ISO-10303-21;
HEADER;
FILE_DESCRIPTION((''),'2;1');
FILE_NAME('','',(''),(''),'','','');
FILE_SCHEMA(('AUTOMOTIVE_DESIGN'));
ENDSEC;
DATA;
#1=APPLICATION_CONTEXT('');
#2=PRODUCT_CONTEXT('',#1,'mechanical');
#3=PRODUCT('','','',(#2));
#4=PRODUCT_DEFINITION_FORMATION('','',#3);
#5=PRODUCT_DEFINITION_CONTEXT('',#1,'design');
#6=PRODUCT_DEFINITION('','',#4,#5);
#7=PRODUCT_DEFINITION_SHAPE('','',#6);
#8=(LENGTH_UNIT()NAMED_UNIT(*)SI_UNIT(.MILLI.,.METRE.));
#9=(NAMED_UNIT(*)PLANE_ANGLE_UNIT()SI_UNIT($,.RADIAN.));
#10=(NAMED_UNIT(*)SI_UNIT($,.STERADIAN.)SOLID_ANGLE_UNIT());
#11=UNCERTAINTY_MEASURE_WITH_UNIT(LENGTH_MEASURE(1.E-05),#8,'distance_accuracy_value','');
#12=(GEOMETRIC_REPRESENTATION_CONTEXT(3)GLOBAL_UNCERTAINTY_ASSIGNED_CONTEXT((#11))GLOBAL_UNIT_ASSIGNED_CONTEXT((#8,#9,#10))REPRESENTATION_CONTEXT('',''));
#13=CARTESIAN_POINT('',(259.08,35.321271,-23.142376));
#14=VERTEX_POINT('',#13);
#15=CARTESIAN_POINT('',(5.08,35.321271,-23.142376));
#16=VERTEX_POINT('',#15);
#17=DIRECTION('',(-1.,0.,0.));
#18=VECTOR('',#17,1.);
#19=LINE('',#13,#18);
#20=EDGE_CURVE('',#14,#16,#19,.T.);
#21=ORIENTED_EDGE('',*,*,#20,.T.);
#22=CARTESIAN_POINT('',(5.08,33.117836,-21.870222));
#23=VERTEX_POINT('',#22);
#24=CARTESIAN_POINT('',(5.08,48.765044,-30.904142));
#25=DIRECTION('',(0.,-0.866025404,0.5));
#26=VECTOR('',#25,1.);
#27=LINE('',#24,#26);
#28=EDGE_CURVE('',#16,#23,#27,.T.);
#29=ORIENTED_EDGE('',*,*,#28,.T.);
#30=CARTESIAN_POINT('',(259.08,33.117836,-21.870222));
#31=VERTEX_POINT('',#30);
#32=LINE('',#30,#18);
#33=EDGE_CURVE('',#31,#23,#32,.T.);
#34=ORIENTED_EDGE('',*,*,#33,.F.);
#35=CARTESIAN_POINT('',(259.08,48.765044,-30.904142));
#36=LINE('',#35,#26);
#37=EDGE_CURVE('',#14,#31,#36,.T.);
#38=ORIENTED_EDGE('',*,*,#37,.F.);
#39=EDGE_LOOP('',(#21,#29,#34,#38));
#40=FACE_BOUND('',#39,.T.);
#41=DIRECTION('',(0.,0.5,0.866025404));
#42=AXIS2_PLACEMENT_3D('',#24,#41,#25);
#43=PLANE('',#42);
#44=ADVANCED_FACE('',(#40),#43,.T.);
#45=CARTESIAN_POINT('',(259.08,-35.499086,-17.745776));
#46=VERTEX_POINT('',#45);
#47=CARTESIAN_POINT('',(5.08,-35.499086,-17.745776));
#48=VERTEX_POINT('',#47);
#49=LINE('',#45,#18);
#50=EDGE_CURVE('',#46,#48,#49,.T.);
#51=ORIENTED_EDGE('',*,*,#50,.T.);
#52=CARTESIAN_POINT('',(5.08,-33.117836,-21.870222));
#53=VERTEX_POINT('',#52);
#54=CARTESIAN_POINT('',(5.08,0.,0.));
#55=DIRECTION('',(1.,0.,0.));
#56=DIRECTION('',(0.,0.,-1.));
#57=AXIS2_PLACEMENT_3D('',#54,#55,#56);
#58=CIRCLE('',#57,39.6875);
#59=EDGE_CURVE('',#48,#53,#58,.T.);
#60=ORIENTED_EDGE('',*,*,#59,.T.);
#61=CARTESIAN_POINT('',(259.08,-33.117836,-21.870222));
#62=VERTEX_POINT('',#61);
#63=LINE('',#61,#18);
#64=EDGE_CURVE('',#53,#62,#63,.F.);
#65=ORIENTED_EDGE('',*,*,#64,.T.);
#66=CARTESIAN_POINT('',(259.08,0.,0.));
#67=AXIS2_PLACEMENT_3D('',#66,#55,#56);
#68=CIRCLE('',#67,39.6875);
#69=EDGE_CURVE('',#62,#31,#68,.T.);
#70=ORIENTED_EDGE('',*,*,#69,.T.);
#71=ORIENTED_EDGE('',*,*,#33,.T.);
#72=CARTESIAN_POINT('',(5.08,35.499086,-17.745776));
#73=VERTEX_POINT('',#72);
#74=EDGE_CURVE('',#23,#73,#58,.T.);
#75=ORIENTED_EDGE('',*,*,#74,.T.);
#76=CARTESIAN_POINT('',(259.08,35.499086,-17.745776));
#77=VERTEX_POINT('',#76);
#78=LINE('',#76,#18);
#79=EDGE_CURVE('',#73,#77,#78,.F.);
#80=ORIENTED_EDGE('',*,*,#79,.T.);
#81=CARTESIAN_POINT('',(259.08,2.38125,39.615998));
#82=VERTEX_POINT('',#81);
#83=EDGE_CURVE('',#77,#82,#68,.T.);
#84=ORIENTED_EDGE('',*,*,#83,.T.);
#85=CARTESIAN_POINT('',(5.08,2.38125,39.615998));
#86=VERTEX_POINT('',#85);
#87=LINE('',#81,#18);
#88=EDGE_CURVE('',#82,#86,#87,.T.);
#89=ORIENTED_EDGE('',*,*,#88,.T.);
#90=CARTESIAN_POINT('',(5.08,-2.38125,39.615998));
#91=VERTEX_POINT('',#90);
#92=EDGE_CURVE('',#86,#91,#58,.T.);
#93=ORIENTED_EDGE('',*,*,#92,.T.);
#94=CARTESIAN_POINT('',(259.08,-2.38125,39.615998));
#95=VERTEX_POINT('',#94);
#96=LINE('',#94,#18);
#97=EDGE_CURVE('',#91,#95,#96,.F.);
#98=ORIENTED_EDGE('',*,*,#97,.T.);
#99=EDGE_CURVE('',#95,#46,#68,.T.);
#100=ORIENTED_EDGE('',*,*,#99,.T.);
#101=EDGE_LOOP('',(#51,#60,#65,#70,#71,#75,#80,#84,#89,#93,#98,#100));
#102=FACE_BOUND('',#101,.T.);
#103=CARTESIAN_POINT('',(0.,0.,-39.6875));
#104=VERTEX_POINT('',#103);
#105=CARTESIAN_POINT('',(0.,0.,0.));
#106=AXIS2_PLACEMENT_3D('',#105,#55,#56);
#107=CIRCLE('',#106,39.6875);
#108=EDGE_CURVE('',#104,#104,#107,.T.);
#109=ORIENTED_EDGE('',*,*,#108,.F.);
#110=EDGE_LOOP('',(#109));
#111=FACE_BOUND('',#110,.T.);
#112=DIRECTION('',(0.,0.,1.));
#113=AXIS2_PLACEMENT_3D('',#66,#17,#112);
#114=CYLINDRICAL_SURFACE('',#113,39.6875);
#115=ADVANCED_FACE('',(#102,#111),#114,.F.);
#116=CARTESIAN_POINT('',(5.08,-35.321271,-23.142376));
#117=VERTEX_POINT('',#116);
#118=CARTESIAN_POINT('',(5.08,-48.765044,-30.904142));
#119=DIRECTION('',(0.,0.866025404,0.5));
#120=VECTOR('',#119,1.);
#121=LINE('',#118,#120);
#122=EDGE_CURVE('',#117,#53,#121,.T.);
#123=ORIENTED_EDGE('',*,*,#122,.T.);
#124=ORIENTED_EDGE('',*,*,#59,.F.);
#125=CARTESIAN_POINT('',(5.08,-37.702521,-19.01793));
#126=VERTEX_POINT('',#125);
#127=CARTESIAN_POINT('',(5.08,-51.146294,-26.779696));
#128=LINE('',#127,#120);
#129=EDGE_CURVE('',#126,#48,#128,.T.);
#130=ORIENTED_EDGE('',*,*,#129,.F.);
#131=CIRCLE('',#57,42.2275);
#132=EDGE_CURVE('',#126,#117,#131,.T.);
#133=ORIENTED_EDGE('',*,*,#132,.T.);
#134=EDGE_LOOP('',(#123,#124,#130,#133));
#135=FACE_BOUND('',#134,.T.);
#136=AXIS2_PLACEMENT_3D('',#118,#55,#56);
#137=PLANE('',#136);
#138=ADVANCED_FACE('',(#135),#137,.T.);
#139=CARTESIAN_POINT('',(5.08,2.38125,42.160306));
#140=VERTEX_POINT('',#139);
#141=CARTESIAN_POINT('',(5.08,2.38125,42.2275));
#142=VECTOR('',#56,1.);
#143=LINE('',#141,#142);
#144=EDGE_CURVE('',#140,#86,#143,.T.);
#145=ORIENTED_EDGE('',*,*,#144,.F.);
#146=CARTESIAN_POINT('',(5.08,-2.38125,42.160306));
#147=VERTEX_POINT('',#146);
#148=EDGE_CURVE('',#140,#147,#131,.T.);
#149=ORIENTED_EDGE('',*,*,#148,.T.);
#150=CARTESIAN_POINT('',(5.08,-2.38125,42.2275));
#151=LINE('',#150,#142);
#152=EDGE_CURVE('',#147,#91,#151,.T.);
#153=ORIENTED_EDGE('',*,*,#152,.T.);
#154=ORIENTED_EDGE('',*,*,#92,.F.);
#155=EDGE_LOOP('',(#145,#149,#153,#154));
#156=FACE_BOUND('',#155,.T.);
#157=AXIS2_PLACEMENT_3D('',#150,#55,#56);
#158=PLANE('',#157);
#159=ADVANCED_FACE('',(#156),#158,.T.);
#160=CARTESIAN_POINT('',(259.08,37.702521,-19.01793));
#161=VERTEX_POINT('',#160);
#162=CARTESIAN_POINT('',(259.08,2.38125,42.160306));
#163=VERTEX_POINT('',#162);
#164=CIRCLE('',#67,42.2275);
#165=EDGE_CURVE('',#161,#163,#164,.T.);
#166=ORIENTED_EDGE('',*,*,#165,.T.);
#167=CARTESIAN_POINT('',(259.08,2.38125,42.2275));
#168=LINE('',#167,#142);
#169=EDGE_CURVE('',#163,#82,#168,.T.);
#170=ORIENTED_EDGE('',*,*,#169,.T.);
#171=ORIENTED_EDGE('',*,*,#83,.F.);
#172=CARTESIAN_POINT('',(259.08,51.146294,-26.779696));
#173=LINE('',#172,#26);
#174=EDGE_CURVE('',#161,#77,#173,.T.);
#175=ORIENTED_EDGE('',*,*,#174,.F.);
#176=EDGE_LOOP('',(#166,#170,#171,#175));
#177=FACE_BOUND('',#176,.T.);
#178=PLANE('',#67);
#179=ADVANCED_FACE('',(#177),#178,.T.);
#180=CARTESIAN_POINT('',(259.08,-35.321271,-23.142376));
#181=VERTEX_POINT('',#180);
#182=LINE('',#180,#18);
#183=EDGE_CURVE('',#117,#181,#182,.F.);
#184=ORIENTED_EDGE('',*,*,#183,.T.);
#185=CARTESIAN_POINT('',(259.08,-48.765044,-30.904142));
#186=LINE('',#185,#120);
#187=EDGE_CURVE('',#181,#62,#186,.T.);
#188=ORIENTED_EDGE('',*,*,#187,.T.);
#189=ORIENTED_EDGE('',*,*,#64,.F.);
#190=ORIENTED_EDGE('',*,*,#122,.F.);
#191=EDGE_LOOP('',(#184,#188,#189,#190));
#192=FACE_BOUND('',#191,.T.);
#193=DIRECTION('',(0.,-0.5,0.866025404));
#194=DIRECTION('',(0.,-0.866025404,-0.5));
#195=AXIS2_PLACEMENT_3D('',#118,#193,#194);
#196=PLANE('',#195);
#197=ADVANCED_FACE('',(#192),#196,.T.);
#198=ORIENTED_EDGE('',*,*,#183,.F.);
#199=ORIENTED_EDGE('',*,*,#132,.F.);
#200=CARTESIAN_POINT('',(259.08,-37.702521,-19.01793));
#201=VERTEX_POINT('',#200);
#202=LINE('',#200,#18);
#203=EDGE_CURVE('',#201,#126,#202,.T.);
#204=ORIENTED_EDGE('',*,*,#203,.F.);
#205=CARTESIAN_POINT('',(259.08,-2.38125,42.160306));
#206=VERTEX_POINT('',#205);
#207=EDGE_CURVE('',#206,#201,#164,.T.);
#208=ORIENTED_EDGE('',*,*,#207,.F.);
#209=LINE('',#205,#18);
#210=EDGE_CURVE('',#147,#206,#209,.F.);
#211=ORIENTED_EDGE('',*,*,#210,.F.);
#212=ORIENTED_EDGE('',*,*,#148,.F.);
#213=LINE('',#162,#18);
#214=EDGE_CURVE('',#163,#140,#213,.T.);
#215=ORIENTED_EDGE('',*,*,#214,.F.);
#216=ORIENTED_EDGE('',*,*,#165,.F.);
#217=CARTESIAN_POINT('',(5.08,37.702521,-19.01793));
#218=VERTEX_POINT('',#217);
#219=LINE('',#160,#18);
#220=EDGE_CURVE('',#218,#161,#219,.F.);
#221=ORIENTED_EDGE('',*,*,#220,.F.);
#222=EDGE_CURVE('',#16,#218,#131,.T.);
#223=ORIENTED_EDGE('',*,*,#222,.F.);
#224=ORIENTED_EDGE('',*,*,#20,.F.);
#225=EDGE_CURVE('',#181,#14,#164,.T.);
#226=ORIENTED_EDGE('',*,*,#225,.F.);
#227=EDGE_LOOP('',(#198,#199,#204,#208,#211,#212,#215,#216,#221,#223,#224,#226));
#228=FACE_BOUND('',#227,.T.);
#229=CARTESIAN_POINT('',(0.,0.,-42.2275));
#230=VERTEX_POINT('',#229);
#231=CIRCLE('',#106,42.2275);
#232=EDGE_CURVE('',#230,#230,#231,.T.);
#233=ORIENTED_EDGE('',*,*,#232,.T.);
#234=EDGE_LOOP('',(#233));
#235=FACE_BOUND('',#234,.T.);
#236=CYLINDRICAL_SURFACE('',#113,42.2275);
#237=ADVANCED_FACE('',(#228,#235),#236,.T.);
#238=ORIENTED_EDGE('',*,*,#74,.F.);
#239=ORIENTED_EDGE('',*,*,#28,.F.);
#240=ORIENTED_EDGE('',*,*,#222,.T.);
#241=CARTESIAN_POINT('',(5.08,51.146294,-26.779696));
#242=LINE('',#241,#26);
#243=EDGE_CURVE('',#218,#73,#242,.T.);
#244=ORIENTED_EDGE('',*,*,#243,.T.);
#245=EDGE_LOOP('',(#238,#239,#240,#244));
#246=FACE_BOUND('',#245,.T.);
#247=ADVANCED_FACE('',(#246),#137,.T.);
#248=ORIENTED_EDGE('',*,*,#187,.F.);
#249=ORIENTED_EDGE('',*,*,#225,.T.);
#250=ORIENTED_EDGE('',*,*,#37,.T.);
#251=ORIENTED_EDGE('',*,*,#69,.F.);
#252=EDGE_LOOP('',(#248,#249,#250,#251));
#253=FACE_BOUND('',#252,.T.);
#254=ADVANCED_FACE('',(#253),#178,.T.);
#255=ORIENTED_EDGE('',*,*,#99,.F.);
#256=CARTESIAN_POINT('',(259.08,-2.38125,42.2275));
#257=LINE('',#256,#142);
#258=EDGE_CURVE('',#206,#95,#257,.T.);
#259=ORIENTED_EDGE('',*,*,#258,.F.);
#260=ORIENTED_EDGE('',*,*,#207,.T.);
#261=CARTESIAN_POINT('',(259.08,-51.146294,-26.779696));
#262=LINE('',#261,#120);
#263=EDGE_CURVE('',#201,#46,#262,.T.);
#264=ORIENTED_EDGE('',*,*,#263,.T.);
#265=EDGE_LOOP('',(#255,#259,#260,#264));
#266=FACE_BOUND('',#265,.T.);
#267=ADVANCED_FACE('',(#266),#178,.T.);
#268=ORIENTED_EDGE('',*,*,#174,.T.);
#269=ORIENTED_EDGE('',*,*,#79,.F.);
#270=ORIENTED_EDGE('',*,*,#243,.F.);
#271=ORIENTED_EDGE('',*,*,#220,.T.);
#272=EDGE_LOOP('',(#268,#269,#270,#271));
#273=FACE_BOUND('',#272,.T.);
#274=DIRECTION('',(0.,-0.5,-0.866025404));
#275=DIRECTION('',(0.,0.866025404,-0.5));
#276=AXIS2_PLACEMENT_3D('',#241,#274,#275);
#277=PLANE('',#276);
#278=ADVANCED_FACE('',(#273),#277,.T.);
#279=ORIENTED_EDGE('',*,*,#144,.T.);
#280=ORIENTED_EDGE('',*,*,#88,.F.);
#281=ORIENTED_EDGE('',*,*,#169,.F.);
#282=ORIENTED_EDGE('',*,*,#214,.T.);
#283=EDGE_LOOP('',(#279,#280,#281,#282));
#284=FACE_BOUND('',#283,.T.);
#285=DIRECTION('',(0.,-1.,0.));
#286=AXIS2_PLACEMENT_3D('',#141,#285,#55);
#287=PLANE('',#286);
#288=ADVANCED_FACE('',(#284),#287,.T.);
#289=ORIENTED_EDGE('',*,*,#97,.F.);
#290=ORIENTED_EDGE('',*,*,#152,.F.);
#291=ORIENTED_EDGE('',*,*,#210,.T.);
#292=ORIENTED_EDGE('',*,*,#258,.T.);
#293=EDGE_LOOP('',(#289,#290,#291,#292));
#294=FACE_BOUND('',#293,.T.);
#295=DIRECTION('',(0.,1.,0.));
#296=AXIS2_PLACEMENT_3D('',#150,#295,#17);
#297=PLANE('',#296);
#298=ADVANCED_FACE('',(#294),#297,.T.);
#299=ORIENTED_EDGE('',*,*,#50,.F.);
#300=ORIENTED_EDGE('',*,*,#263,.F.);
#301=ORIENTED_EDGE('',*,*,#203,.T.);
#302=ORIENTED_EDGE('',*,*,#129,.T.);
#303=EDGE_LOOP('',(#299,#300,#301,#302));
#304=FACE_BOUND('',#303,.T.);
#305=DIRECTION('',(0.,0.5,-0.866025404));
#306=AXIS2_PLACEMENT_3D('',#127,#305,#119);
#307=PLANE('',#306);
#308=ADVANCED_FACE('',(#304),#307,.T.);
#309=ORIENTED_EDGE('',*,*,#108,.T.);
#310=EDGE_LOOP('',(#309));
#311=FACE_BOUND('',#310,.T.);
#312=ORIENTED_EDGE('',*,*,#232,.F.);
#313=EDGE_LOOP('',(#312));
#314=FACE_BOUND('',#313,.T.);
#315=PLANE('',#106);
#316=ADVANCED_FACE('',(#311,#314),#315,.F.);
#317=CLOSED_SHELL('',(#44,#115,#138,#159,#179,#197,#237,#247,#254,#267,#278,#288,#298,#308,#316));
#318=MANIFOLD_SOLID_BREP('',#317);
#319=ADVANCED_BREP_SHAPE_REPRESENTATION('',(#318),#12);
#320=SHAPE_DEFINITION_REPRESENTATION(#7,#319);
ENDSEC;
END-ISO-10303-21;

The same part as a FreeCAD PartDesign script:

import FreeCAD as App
import Part
import Sketcher
Q = App.Units.Quantity


def add_polygon(sketch, points):
    """Adds a closed chain of lines whose ends are joined by coincident constraints."""
    first, n = sketch.GeometryCount, len(points)
    for a, b in zip(points, points[1:] + points[:1]):
        sketch.addGeometry(Part.LineSegment(App.Vector(*a, 0), App.Vector(*b, 0)), False)
    for i in range(n):
        sketch.addConstraint(Sketcher.Constraint("Coincident", first + i, 2, first + (i + 1) % n, 1))

doc = App.newDocument("Part")
params = doc.addObject("Spreadsheet::Sheet", "Params")
for row, (alias, value) in enumerate([
    ("sketch1_diameter", "3.325 in"),
    ("sketch1_diameter2", "3.125 in"),
    ("pad1_length", "10.2 in"),
    ("sketch2_width", "10 in"),
    ("sketch2_height", "0.1875 in"),
], start=1):
    params.set(f"A{row}", alias)
    params.set(f"B{row}", "=" + value)
    params.setAlias(f"B{row}", alias)

body = doc.addObject("PartDesign::Body", "Body")

sketch1 = doc.addObject("Sketcher::SketchObject", "Sketch")
body.addObject(sketch1)
sketch1.AttachmentSupport = (doc.YZ_Plane, [""])
sketch1.MapMode = "FlatFace"
sketch1.addGeometry([
    Part.Circle(App.Vector(0, 0, 0), App.Vector(0, 0, 1), 42.2275),
    Part.Circle(App.Vector(0, 0, 0), App.Vector(0, 0, 1), 39.6875),
], False)
sketch1.addConstraint([
    Sketcher.Constraint("Coincident", 0, 3, -1, 1),
    Sketcher.Constraint("Coincident", 1, 3, -1, 1),
    Sketcher.Constraint("Diameter", 0, Q("3.325 in")),
    Sketcher.Constraint("Diameter", 1, Q("3.125 in")),
])
sketch1.setExpression("Constraints[2]", "Params.sketch1_diameter")
sketch1.setExpression("Constraints[3]", "Params.sketch1_diameter2")
pad1 = doc.addObject("PartDesign::Pad", "Pad")
body.addObject(pad1)
pad1.Profile = sketch1
pad1.setExpression("Length", "Params.pad1_length")

sketch2 = doc.addObject("Sketcher::SketchObject", "Sketch001")
body.addObject(sketch2)
sketch2.AttachmentSupport = (doc.XY_Plane, [""])
sketch2.MapMode = "FlatFace"
add_polygon(sketch2, [(5.08, -2.38125), (259.08, -2.38125), (259.08, 2.38125), (5.08, 2.38125)])
sketch2.addConstraint([
    Sketcher.Constraint("Horizontal", 0),
    Sketcher.Constraint("Vertical", 1),
    Sketcher.Constraint("Horizontal", 2),
    Sketcher.Constraint("Vertical", 3),
    Sketcher.Constraint("DistanceX", 0, 1, 0, 2, Q("10 in")),
    Sketcher.Constraint("DistanceX", -1, 1, 0, 2, Q("10.2 in")),
    Sketcher.Constraint("DistanceY", 1, 1, 1, 2, Q("0.1875 in")),
    Sketcher.Constraint("DistanceY", 0, 2, -1, 1, Q("0.09375 in")),
])
sketch2.setExpression("Constraints[8]", "Params.sketch2_width")
sketch2.setExpression("Constraints[10]", "Params.sketch2_height")
pocket1 = doc.addObject("PartDesign::Pocket", "Pocket")
body.addObject(pocket1)
pocket1.Profile = sketch2
pocket1.Type = "ThroughAll"
pocket1.Reversed = True
doc.recompute()

polarpattern = doc.addObject("PartDesign::PolarPattern", "PolarPattern")
body.addObject(polarpattern)
polarpattern.Originals = [pocket1]
polarpattern.Axis = (doc.X_Axis, [""])
polarpattern.Angle = 360
polarpattern.Occurrences = 3
body.Tip = polarpattern

doc.recompute()
